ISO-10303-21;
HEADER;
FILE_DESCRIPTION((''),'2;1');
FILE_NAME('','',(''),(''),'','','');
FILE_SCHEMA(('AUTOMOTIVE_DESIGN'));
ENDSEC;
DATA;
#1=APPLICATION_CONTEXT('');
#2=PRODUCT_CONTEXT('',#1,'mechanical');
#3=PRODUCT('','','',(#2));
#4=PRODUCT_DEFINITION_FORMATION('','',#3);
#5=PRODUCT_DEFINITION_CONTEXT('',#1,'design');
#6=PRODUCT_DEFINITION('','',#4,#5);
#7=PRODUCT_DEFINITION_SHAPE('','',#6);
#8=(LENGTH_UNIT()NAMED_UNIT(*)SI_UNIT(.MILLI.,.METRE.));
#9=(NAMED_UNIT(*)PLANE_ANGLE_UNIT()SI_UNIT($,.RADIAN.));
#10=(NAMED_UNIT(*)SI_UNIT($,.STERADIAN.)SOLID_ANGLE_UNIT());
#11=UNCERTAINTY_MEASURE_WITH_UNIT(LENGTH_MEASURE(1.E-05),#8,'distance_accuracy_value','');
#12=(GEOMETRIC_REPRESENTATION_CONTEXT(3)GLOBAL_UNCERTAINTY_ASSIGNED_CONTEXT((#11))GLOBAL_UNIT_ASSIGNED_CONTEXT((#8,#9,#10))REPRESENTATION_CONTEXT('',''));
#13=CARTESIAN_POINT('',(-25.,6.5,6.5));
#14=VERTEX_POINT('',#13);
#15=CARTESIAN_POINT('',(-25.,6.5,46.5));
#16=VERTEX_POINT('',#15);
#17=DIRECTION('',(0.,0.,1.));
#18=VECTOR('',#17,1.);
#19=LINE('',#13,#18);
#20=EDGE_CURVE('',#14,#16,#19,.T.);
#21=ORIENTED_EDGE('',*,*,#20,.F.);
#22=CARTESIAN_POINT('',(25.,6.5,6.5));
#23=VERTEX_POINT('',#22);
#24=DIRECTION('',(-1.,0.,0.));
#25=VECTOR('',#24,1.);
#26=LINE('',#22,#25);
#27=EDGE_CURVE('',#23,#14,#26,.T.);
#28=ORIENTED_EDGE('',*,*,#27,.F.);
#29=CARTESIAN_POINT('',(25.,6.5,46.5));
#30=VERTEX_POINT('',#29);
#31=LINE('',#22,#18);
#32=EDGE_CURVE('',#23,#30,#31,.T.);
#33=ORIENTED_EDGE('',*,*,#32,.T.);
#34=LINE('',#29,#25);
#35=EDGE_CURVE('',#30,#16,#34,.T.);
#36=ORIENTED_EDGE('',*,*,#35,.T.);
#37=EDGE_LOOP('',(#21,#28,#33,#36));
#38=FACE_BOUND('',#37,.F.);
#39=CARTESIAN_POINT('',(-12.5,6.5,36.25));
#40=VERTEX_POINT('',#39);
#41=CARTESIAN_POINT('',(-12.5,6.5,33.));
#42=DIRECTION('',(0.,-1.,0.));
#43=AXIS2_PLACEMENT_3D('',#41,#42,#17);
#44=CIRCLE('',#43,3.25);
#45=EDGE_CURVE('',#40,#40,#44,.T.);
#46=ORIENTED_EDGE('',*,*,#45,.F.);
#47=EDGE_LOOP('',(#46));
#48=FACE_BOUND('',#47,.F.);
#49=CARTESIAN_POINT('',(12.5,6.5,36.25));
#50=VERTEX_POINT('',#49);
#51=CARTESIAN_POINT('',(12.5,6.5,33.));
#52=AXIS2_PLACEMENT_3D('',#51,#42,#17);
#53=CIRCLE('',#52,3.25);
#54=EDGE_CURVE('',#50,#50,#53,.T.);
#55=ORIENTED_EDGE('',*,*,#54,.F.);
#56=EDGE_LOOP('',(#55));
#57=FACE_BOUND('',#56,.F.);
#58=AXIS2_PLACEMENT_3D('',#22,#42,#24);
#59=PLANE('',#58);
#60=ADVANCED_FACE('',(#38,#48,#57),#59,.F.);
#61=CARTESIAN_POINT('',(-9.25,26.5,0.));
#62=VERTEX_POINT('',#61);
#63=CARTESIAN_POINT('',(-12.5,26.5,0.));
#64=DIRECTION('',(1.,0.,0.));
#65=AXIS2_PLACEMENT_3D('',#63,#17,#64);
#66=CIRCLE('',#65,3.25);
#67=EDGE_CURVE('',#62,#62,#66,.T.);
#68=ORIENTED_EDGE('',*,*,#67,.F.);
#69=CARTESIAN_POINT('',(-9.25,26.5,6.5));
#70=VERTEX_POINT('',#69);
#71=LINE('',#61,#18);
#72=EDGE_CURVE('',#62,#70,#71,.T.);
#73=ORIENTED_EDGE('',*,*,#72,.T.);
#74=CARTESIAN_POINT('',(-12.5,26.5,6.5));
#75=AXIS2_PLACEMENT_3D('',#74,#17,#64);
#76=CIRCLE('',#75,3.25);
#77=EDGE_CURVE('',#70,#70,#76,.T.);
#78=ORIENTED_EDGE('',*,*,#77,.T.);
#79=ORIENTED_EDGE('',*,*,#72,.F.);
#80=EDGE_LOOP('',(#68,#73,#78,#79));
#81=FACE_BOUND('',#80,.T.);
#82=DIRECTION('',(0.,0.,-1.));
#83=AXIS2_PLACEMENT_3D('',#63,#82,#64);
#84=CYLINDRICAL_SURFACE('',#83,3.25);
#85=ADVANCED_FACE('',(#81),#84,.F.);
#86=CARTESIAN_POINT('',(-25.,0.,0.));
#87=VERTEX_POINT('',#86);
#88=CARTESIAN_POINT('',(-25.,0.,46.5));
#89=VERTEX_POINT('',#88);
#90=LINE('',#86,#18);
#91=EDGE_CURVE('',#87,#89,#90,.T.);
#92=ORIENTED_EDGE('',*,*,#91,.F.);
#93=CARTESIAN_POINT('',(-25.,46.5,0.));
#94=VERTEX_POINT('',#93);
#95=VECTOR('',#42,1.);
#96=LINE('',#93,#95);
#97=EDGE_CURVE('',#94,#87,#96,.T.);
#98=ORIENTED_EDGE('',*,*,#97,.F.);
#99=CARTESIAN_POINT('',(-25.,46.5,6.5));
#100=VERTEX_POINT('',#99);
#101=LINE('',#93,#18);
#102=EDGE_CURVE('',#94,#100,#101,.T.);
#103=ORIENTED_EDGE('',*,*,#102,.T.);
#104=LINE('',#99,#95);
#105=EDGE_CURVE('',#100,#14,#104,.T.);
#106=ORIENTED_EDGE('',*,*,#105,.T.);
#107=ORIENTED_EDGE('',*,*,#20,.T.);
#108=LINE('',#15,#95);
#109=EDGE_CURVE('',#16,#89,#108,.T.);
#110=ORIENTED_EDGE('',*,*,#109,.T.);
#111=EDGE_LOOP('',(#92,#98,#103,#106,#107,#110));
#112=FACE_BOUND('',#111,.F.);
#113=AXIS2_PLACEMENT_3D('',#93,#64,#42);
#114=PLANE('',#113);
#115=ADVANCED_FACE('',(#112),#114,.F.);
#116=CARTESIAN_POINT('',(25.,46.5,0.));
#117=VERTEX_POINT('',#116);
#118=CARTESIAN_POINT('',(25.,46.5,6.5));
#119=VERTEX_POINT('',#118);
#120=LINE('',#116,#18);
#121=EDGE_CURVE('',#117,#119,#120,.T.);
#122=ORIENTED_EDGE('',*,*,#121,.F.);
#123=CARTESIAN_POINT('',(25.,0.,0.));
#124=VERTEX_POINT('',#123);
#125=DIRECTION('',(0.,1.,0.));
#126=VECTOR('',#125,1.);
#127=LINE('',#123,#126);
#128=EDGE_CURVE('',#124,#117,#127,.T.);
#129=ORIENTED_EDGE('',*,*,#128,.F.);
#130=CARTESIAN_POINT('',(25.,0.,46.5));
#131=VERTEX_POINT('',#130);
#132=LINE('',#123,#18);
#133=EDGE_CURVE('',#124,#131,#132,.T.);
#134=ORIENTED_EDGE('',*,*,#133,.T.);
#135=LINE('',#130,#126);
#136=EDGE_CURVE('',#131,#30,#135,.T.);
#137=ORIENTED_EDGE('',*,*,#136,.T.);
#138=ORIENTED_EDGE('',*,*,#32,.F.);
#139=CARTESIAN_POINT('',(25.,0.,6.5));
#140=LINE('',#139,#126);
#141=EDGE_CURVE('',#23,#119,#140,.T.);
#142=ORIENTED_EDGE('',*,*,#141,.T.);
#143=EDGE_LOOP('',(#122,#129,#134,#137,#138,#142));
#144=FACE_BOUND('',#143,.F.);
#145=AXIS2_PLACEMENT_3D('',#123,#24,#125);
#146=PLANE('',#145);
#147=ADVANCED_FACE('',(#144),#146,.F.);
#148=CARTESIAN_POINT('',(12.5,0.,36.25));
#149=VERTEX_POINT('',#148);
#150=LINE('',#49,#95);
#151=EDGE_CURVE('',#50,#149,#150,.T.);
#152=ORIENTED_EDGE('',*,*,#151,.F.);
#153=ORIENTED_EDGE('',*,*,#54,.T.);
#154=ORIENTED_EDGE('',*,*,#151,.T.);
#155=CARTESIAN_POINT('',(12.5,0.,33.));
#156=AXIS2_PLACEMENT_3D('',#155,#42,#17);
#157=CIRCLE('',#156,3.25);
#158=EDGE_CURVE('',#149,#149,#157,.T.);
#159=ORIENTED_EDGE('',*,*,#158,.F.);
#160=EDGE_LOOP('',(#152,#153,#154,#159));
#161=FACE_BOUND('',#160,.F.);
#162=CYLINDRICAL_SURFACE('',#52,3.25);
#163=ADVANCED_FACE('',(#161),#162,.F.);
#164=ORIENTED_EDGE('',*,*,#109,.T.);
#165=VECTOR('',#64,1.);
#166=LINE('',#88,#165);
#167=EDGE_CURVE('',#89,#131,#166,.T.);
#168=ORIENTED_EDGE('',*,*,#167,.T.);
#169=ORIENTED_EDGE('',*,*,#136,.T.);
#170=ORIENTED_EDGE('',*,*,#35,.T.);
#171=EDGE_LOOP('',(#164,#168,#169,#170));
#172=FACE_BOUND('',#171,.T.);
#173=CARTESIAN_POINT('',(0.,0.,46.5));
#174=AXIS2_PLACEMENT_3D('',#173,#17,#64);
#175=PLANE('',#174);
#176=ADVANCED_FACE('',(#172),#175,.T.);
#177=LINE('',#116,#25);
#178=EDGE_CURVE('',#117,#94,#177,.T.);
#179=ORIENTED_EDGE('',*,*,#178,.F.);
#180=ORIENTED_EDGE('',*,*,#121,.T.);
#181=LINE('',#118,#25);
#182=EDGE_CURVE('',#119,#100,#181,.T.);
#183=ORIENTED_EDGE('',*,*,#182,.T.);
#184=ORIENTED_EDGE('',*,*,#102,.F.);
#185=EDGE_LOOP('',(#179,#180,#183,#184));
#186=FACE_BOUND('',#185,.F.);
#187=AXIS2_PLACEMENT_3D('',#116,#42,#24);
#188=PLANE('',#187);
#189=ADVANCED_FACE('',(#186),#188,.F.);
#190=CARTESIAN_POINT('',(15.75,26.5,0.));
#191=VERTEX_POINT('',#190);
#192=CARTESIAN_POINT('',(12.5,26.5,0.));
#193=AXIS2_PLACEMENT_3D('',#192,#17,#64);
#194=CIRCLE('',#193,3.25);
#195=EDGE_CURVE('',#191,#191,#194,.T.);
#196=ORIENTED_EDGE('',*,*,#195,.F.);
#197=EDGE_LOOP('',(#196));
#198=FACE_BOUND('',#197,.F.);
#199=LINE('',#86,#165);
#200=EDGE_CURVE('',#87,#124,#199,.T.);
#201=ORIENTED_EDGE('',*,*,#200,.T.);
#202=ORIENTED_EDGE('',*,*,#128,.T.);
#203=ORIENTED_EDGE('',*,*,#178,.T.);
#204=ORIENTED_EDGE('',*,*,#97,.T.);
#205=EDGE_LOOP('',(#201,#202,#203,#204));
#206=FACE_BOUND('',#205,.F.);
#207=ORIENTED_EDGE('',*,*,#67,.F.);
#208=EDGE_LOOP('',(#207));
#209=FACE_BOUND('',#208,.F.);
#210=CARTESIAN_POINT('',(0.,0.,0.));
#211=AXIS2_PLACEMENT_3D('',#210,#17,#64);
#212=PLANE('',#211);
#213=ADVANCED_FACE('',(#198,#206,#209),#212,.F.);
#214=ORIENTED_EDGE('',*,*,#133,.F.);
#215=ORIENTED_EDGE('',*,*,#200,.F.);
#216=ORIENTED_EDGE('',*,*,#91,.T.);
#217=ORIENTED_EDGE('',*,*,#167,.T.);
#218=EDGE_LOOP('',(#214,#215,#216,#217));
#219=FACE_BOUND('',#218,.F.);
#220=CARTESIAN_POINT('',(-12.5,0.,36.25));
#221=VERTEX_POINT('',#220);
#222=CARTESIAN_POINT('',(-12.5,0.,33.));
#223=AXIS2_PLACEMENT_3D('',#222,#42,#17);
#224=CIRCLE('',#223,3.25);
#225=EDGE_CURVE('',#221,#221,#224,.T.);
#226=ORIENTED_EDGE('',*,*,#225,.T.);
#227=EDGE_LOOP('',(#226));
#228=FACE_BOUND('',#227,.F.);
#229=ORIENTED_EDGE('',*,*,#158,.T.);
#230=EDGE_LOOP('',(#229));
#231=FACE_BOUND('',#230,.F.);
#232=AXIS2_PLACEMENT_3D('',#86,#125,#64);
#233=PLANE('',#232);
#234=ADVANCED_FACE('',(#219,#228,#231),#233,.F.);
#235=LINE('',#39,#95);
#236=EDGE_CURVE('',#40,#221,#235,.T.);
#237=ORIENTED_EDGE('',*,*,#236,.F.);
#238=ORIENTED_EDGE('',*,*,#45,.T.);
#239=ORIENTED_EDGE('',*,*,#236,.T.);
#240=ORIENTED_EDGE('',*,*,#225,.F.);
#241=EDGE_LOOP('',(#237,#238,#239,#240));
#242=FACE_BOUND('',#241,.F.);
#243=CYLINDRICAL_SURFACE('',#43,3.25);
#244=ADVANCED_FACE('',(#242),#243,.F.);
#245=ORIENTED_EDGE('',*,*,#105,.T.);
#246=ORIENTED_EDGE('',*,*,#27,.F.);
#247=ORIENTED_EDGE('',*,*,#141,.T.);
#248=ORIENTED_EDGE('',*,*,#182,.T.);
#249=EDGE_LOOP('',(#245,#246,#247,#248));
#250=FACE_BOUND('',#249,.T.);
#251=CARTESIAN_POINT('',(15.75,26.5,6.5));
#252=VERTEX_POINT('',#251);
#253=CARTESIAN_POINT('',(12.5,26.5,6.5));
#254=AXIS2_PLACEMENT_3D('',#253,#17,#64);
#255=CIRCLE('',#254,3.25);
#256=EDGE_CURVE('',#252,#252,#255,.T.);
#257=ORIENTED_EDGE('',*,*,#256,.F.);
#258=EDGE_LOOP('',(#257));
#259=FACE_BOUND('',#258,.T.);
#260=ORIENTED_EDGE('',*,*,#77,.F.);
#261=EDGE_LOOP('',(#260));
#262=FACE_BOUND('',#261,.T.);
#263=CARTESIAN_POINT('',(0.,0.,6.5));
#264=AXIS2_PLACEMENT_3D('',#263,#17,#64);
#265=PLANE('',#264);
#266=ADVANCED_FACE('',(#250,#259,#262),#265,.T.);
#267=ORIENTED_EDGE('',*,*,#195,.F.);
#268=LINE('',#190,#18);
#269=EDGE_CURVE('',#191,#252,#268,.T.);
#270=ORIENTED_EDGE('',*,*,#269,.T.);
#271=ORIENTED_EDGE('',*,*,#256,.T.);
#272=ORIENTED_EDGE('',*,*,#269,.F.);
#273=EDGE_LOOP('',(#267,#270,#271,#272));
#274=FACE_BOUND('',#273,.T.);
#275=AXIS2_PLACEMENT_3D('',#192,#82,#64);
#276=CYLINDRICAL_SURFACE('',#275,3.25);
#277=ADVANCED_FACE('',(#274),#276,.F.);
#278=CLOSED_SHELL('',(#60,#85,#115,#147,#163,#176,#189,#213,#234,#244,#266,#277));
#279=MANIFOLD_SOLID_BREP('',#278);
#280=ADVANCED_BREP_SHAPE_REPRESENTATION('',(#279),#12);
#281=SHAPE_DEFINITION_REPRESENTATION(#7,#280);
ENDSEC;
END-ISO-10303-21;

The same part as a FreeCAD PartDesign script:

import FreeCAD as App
import Part
import Sketcher
Q = App.Units.Quantity

doc = App.newDocument("Part")
params = doc.addObject("Spreadsheet::Sheet", "Params")
for row, (alias, value) in enumerate([
    ("sketch1_diameter", "6.5 mm"),
    ("sketch1_width", "50 mm"),
    ("sketch1_height", "46.5 mm"),
    ("pad1_length", "6.5 mm"),
    ("sketch2_width", "50 mm"),
    ("sketch2_height", "6.5 mm"),
    ("pad2_length", "40 mm"),
    ("sketch3_diameter", "6.5 mm"),
    ("hole_diameter", "6.5 mm"),
    ("sketch4_diameter", "6.5 mm"),
    ("hole2_diameter", "6.5 mm"),
], start=1):
    params.set(f"A{row}", alias)
    params.set(f"B{row}", "=" + value)
    params.setAlias(f"B{row}", alias)

body = doc.addObject("PartDesign::Body", "Body")

sketch1 = body.newObject("Sketcher::SketchObject", "Sketch")
sketch1.AttachmentSupport = (doc.getObject("XY_Plane"), [""])
sketch1.MapMode = "FlatFace"
sketch1.addGeometry([
    Part.LineSegment(App.Vector(-25, 46.5, 0), App.Vector(-25, 0, 0)),
    Part.LineSegment(App.Vector(-25, 0, 0), App.Vector(25, 0, 0)),
    Part.LineSegment(App.Vector(25, 0, 0), App.Vector(25, 46.5, 0)),
    Part.LineSegment(App.Vector(25, 46.5, 0), App.Vector(-25, 46.5, 0)),
    Part.Circle(App.Vector(-12.5, 26.5, 0), App.Vector(0, 0, 1), 3.2),
    Part.Circle(App.Vector(12.5, 26.5, 0), App.Vector(0, 0, 1), 3.2),
], False)
sketch1.addConstraint([
    Sketcher.Constraint("Coincident", 0, 2, 1, 1),
    Sketcher.Constraint("Coincident", 1, 2, 2, 1),
    Sketcher.Constraint("Coincident", 2, 2, 3, 1),
    Sketcher.Constraint("Coincident", 3, 2, 0, 1),
    Sketcher.Constraint("Vertical", 0),
    Sketcher.Constraint("Horizontal", 1),
    Sketcher.Constraint("Vertical", 2),
    Sketcher.Constraint("Horizontal", 3),
    Sketcher.Constraint("Equal", 4, 5),
    Sketcher.Constraint("Symmetric", 0, 2, 1, 2, -1, 1),
    Sketcher.Constraint("Symmetric", 4, 3, 5, 3, -2),
    Sketcher.Constraint("Diameter", 4, Q("6.5 mm")),
    Sketcher.Constraint("DistanceX", 1, 1, 1, 2, Q("50 mm")),
    Sketcher.Constraint("DistanceY", 0, 2, 0, 1, Q("46.5 mm")),
    Sketcher.Constraint("DistanceX", 4, 3, 5, 3, Q("25 mm")),
    Sketcher.Constraint("DistanceY", 5, 3, 2, 2, Q("20 mm")),
])
sketch1.setExpression("Constraints[11]", "Params.sketch1_diameter")
sketch1.setExpression("Constraints[12]", "Params.sketch1_width")
sketch1.setExpression("Constraints[13]", "Params.sketch1_height")
pad1 = body.newObject("PartDesign::Pad", "Pad")
pad1.Profile = sketch1
pad1.setExpression("Length", "Params.pad1_length")

sketch2 = body.newObject("Sketcher::SketchObject", "Sketch001")
sketch2.AttachmentSupport = (doc.getObject("XY_Plane"), [""])
sketch2.MapMode = "FlatFace"
sketch2.AttachmentOffset = App.Placement(App.Vector(0, 0, 6.5), App.Rotation())
sketch2.addGeometry([
    Part.LineSegment(App.Vector(-25, 6, 0), App.Vector(-25, 0, 0)),
    Part.LineSegment(App.Vector(-25, 0, 0), App.Vector(25, 0, 0)),
    Part.LineSegment(App.Vector(25, 0, 0), App.Vector(25, 6, 0)),
    Part.LineSegment(App.Vector(25, 6, 0), App.Vector(-25, 6, 0)),
], False)
sketch2.addConstraint([
    Sketcher.Constraint("Coincident", 0, 2, 1, 1),
    Sketcher.Constraint("Coincident", 1, 2, 2, 1),
    Sketcher.Constraint("Coincident", 2, 2, 3, 1),
    Sketcher.Constraint("Coincident", 3, 2, 0, 1),
    Sketcher.Constraint("Vertical", 0),
    Sketcher.Constraint("Horizontal", 1),
    Sketcher.Constraint("Vertical", 2),
    Sketcher.Constraint("Horizontal", 3),
    Sketcher.Constraint("Symmetric", 0, 2, 1, 2, -1, 1),
    Sketcher.Constraint("DistanceX", 1, 1, 1, 2, Q("50 mm")),
    Sketcher.Constraint("DistanceY", 0, 2, 0, 1, Q("6.5 mm")),
])
sketch2.setExpression("Constraints[9]", "Params.sketch2_width")
sketch2.setExpression("Constraints[10]", "Params.sketch2_height")
pad2 = body.newObject("PartDesign::Pad", "Pad001")
pad2.Profile = sketch2
pad2.setExpression("Length", "Params.pad2_length")

sketch3 = body.newObject("Sketcher::SketchObject", "Sketch002")
sketch3.AttachmentSupport = (doc.getObject("XZ_Plane"), [""])
sketch3.MapMode = "FlatFace"
sketch3.AttachmentOffset = App.Placement(App.Vector(0, 0, -6.5), App.Rotation())
sketch3.addGeometry(Part.Circle(App.Vector(-12.5, 33, 0), App.Vector(0, 0, 1), 3.2), False)
sketch3.addConstraint([
    Sketcher.Constraint("Diameter", 0, Q("6.5 mm")),
    Sketcher.Constraint("DistanceY", -1, 1, 0, 3, Q("33 mm")),
    Sketcher.Constraint("DistanceX", 0, 3, -1, 1, Q("12.5 mm")),
])
sketch3.setExpression("Constraints[0]", "Params.sketch3_diameter")
doc.recompute()
hole = body.newObject("PartDesign::Hole", "Hole")
hole.Profile = sketch3
hole.ThreadType = "None"
hole.setExpression("Diameter", "Params.hole_diameter")
hole.DepthType = "ThroughAll"
hole.Reversed = True

sketch4 = body.newObject("Sketcher::SketchObject", "Sketch003")
sketch4.AttachmentSupport = (doc.getObject("XZ_Plane"), [""])
sketch4.MapMode = "FlatFace"
sketch4.AttachmentOffset = App.Placement(App.Vector(0, 0, -6.5), App.Rotation())
sketch4.addGeometry(Part.Circle(App.Vector(12.5, 33, 0), App.Vector(0, 0, 1), 3.2), False)
sketch4.addConstraint([
    Sketcher.Constraint("Diameter", 0, Q("6.5 mm")),
    Sketcher.Constraint("DistanceY", -1, 1, 0, 3, Q("33 mm")),
    Sketcher.Constraint("DistanceX", -1, 1, 0, 3, Q("12.5 mm")),
])
sketch4.setExpression("Constraints[0]", "Params.sketch4_diameter")
doc.recompute()
hole2 = body.newObject("PartDesign::Hole", "Hole001")
hole2.Profile = sketch4
hole2.ThreadType = "None"
hole2.setExpression("Diameter", "Params.hole2_diameter")
hole2.DepthType = "ThroughAll"
hole2.Reversed = True

doc.recompute()
